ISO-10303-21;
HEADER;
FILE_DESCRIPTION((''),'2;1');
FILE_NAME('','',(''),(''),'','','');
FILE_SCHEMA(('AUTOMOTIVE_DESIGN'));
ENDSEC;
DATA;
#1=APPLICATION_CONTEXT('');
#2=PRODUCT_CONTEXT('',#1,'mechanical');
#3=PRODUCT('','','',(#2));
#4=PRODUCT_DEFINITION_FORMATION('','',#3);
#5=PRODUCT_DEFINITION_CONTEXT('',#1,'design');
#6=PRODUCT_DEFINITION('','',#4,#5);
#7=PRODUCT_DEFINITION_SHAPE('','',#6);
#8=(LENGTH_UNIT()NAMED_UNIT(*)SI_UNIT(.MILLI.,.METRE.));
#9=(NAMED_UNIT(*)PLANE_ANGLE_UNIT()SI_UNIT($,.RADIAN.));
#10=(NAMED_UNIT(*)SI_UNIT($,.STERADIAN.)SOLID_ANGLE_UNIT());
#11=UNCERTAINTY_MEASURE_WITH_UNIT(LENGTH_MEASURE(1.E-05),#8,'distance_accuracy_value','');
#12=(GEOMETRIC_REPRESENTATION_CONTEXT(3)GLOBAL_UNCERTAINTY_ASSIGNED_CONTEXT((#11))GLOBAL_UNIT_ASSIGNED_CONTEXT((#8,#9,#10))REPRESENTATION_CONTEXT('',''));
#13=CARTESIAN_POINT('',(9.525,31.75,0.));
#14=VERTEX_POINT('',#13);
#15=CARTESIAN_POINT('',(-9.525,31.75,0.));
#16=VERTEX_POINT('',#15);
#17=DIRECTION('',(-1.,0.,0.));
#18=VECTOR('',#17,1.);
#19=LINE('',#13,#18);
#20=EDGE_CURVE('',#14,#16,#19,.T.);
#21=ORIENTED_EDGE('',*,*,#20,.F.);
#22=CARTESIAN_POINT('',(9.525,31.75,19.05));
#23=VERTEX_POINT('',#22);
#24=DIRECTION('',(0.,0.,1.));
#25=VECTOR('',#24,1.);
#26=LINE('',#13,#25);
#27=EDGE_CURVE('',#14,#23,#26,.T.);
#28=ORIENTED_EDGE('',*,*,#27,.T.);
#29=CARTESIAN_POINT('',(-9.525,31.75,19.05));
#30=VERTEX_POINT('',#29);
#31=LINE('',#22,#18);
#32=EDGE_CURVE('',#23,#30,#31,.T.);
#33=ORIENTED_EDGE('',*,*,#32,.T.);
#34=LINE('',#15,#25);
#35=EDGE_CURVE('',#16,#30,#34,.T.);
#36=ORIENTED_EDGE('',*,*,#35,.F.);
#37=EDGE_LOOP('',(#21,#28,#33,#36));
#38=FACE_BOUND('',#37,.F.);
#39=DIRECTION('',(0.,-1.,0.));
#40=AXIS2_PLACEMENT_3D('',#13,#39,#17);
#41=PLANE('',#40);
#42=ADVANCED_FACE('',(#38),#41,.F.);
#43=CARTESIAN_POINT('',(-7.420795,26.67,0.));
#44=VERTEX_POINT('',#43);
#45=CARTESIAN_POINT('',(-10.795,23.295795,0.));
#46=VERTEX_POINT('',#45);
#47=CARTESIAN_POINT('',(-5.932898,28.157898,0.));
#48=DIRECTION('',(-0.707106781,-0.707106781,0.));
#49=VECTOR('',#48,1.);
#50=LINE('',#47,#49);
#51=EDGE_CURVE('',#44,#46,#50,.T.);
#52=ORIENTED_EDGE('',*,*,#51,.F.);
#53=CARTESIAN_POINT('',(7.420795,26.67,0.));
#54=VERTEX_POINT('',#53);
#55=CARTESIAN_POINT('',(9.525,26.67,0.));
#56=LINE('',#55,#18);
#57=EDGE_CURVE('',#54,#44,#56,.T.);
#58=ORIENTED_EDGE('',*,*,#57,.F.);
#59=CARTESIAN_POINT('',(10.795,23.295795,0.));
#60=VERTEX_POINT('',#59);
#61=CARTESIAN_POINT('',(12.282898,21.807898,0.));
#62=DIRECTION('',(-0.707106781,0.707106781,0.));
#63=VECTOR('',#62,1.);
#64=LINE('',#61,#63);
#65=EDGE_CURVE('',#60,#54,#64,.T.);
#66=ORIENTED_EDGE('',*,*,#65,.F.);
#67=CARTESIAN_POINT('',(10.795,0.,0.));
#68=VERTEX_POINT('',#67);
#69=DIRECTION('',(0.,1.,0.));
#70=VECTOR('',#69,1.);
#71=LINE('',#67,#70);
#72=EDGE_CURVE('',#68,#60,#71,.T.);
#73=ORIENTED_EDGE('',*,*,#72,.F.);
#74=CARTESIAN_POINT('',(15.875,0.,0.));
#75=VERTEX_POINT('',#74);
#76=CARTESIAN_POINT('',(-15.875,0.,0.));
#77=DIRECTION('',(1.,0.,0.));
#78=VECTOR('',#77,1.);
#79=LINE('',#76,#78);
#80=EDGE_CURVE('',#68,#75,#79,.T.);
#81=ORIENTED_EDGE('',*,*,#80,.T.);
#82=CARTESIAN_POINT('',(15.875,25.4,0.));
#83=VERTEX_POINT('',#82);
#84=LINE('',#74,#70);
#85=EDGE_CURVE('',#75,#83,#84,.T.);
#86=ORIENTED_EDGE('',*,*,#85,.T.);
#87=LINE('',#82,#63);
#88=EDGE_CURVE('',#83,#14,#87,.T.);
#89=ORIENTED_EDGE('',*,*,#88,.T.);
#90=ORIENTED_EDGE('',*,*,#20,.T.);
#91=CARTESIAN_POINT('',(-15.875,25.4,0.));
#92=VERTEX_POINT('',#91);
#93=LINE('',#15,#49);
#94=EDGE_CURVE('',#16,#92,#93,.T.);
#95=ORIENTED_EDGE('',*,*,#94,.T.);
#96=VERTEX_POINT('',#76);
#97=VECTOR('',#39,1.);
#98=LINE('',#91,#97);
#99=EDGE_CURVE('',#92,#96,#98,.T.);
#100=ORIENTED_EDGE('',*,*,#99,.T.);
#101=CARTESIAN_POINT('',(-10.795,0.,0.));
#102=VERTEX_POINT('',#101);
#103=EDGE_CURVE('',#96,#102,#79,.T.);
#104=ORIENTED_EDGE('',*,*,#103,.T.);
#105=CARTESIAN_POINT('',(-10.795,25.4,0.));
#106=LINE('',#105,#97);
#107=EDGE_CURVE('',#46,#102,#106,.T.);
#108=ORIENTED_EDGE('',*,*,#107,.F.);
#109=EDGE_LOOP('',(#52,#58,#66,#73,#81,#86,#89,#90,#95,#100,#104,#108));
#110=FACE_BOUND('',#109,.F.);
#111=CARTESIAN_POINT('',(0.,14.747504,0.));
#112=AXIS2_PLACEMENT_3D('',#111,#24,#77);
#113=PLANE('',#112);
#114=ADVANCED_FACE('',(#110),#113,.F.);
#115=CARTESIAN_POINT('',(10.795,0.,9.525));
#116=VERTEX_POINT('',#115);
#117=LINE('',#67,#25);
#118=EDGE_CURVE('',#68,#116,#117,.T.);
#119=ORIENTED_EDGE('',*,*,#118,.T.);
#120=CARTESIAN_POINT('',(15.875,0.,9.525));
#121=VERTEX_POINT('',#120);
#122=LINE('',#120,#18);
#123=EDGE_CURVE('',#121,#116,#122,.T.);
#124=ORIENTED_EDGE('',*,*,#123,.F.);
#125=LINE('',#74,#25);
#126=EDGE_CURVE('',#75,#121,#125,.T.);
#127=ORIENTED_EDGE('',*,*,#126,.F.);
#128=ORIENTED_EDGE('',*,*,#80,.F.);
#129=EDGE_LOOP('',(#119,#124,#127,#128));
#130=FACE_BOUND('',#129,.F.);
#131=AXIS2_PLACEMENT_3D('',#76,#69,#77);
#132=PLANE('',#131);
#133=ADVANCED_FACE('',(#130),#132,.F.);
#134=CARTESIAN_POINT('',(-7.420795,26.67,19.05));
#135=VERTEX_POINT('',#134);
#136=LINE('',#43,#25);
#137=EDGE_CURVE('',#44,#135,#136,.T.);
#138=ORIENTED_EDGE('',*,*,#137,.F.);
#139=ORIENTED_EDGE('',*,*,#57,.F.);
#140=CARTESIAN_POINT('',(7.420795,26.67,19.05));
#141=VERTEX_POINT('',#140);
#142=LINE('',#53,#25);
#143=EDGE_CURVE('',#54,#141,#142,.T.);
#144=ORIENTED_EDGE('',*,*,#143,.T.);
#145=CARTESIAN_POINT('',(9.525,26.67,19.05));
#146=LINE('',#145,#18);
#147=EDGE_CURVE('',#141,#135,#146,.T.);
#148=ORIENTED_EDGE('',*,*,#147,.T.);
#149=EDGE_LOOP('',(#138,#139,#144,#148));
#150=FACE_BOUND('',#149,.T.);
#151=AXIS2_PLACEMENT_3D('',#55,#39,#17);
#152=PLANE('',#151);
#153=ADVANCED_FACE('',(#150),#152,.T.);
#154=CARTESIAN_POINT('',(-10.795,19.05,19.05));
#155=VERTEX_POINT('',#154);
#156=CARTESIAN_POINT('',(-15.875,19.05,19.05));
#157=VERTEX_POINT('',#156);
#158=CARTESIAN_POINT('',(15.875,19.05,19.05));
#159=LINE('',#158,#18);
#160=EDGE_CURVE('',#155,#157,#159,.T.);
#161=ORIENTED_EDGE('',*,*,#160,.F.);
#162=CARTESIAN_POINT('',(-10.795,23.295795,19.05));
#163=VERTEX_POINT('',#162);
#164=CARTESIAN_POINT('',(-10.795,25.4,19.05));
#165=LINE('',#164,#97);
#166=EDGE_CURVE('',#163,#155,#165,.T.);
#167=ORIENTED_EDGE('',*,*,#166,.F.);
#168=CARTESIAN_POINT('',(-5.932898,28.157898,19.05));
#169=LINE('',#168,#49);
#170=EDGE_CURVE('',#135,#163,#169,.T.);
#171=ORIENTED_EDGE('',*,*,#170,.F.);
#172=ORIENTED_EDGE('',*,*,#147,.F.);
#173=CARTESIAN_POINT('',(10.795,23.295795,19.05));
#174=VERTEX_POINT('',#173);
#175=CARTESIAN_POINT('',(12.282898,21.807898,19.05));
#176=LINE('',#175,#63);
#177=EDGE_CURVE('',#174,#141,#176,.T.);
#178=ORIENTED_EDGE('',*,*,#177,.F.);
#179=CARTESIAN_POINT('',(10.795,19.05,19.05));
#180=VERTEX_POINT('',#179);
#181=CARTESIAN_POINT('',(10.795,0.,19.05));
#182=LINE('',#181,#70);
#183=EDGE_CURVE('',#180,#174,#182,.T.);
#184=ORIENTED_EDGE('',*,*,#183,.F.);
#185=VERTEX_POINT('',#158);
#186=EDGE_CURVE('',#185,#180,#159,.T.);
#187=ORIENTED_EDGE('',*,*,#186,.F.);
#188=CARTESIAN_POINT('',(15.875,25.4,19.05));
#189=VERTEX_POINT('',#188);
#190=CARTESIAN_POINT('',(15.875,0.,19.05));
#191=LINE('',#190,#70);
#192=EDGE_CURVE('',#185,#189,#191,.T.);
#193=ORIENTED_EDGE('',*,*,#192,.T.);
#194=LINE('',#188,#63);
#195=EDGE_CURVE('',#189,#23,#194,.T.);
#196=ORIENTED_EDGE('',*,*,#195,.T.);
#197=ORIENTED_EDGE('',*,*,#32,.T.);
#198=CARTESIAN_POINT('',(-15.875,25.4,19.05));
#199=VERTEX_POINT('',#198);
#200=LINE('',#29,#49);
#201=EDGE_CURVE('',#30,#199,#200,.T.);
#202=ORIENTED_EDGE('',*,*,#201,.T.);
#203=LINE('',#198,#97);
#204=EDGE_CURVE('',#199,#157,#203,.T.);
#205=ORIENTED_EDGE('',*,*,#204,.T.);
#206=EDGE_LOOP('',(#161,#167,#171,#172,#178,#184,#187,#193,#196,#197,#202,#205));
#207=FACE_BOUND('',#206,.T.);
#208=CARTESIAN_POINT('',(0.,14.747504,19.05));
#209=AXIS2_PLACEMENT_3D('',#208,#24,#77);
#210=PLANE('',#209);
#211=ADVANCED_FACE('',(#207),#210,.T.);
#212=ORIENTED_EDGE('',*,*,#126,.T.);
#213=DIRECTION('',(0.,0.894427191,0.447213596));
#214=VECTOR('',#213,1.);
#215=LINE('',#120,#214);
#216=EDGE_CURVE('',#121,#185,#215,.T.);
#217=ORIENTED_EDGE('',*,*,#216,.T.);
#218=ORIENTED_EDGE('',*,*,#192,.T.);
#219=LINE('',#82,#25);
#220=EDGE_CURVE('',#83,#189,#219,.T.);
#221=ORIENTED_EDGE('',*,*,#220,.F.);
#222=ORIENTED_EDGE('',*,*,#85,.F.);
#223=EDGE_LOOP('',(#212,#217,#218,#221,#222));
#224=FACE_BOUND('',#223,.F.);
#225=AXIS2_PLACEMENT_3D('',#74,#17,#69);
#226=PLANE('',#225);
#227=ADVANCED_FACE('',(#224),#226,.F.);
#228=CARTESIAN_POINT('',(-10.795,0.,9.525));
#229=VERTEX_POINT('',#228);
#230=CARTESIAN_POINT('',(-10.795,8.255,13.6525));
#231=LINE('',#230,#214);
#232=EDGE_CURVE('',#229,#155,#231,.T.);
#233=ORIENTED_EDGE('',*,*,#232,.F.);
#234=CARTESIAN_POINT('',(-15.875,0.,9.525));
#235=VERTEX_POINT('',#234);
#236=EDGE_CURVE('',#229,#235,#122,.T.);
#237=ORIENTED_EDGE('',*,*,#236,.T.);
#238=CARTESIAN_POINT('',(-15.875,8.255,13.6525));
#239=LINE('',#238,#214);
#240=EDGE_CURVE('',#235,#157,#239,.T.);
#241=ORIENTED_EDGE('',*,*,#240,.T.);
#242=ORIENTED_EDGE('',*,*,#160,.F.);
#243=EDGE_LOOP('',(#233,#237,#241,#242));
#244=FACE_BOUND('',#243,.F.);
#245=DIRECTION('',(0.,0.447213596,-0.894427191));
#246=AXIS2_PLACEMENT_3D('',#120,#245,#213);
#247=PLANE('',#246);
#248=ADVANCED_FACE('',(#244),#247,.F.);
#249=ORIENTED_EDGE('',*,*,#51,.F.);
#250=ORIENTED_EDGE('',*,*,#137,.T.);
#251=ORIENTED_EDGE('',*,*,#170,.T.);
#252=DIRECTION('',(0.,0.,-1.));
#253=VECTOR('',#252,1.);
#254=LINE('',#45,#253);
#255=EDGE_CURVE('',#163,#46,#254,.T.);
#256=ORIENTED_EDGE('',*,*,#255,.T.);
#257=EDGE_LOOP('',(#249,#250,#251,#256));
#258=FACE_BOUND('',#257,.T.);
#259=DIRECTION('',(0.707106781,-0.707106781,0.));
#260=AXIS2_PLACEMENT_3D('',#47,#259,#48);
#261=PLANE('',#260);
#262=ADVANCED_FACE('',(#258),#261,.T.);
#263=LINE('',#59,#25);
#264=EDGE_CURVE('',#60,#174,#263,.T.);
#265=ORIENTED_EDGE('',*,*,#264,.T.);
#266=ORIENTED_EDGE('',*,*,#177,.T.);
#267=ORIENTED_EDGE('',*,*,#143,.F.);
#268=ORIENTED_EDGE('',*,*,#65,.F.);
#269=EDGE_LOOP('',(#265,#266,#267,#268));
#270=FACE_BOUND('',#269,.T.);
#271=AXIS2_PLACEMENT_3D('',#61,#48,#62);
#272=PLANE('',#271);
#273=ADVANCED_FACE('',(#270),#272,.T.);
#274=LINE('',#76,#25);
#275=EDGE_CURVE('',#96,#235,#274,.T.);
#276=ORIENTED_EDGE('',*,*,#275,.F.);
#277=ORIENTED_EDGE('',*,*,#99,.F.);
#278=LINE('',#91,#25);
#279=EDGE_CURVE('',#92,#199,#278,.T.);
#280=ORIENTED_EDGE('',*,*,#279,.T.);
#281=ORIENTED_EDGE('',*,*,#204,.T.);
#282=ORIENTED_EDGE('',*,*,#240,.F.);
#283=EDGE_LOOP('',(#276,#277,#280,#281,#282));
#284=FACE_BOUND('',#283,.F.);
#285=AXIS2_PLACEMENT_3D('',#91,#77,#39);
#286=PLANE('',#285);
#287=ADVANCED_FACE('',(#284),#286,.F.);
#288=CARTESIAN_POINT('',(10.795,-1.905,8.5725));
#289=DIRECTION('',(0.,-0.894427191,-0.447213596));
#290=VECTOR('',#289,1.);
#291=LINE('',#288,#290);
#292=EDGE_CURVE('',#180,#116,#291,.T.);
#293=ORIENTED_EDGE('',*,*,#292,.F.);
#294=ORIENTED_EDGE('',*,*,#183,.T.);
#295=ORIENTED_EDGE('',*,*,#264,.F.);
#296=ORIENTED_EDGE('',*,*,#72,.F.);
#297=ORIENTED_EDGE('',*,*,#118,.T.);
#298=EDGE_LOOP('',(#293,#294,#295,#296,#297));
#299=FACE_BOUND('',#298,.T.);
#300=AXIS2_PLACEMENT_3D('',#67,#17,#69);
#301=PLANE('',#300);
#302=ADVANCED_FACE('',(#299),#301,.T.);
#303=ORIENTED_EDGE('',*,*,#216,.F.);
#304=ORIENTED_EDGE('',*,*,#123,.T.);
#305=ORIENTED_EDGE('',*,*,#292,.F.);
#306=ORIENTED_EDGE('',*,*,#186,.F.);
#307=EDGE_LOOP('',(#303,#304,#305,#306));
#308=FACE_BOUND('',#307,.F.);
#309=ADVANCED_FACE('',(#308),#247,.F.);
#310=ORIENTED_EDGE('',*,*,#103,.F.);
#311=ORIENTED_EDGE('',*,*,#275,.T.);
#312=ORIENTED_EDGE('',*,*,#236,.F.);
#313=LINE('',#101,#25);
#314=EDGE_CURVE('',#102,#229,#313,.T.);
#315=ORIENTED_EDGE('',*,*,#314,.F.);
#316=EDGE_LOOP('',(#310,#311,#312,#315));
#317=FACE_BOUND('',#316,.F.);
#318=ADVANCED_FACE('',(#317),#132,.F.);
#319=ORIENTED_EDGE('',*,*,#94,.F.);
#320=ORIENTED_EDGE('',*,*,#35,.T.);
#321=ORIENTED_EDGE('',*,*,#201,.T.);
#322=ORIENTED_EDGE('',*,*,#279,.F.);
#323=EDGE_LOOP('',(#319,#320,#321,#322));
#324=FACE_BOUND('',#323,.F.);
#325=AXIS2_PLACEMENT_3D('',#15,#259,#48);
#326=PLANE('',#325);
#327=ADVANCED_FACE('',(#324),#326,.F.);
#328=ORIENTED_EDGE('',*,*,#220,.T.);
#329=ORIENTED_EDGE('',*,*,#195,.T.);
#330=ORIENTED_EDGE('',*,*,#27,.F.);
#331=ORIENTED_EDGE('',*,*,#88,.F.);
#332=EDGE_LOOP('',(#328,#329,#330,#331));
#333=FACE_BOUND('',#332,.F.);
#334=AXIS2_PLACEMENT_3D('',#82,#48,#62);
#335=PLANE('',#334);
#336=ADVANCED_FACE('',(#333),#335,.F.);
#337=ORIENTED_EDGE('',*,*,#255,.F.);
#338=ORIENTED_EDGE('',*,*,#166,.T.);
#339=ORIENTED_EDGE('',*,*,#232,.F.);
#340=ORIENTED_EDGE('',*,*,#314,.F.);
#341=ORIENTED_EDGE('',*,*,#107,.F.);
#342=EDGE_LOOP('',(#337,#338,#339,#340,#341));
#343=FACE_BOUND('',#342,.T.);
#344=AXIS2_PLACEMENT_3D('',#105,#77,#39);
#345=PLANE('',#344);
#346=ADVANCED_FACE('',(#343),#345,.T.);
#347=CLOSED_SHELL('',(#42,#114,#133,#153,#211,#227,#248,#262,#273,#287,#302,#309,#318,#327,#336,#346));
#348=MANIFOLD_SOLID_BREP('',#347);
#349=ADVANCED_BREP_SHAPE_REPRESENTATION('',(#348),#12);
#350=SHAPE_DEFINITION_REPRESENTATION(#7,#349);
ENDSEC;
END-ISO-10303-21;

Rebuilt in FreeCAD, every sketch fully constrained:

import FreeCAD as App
import Part
import Sketcher
from FreeCAD import Vector
Q = App.Units.Quantity


def faces_at(feature, points):
    """Names of the faces that lie closest to the given points."""
    faces = feature.Shape.Faces
    near = lambda p: min(range(len(faces)), key=lambda i: faces[i].distToShape(Part.Vertex(*p))[0])
    return sorted({f"Face{near(p) + 1}" for p in points})


def add_polygon(sketch, points):
    """Adds a closed chain of lines whose ends are joined by coincident constraints."""
    first, n = sketch.GeometryCount, len(points)
    for a, b in zip(points, points[1:] + points[:1]):
        sketch.addGeometry(Part.LineSegment(App.Vector(*a, 0), App.Vector(*b, 0)), False)
    for i in range(n):
        sketch.addConstraint(Sketcher.Constraint("Coincident", first + i, 2, first + (i + 1) % n, 1))

doc = App.newDocument("Part")
params = doc.addObject("Spreadsheet::Sheet", "Params")
for row, (alias, value) in enumerate([
    ("sketch1_height", "1 in"),
    ("sketch1_width", "1.25 in"),
    ("pad1_length", "0.75 in"),
    ("thickness_wall", "0.2 in"),
    ("sketch2_width", "0.75 in"),
    ("sketch2_height", "0.375 in"),
], start=1):
    params.set(f"A{row}", alias)
    params.set(f"B{row}", "=" + value)
    params.setAlias(f"B{row}", alias)

body = doc.addObject("PartDesign::Body", "Body")

# Sketch on XY plane
sketch1 = body.newObject("Sketcher::SketchObject", "Sketch")
sketch1.AttachmentSupport = (doc.getObject("XY_Plane"), [""])
sketch1.MapMode = "FlatFace"
add_polygon(sketch1, [(-16, 25), (-16, 0), (16, 0), (16, 25), (10, 32), (-10, 32)])  # lines 0-5
sketch1.addConstraint([
    Sketcher.Constraint("Vertical", 0),
    Sketcher.Constraint("Horizontal", 1),
    Sketcher.Constraint("Vertical", 2),
    Sketcher.Constraint("Horizontal", 4),
    Sketcher.Constraint("Symmetric", 0, 2, 1, 2, -1, 1),
    Sketcher.Constraint("Perpendicular", 3, 5),
    Sketcher.Constraint("Horizontal", 2, 2, 5, 2),
    Sketcher.Constraint("Equal", 3, 5),
    Sketcher.Constraint("DistanceY", 0, 2, 0, 1, Q("1 in")),
    Sketcher.Constraint("DistanceX", 0, 2, 3, 2, Q("1 in")),
    Sketcher.Constraint("DistanceX", 1, 1, 1, 2, Q("1.25 in")),
])
sketch1.setExpression("Constraints[14]", "Params.sketch1_height")
sketch1.setExpression("Constraints[16]", "Params.sketch1_width")
pad1 = body.newObject("PartDesign::Pad", "Pad")
pad1.Profile = sketch1
pad1.setExpression("Length", "Params.pad1_length")
doc.recompute()

thickness = body.newObject("PartDesign::Thickness", "Thickness")
thickness.Base = (pad1, faces_at(pad1, [(0, 15.875, 19.05), (0, 0, 9.525), (0, 15.875, 0)]))
thickness.setExpression("Value", "Params.thickness_wall")
thickness.Reversed = True
thickness.Join = "Arc"

# Sketch on YZ plane
sketch2 = body.newObject("Sketcher::SketchObject", "Sketch001")
sketch2.AttachmentSupport = (doc.getObject("YZ_Plane"), [""])
sketch2.MapMode = "FlatFace"
sketch2.AttachmentOffset = App.Placement(Vector(0, 0, 0.625 * 25.4), App.Rotation())
add_polygon(sketch2, [(0, 19), (0, 10), (19, 19)])  # lines 0-2
sketch2.addConstraint([
    Sketcher.Constraint("Vertical", 0),
    Sketcher.Constraint("Horizontal", 2),
    Sketcher.Constraint("PointOnObject", 0, 2, -2),
    Sketcher.Constraint("DistanceX", 2, 2, 2, 1, Q("0.75 in")),
    Sketcher.Constraint("DistanceY", 0, 2, 0, 1, Q("0.375 in")),
    Sketcher.Constraint("DistanceY", -1, 1, 1, 2, Q("0.75 in")),
])
sketch2.setExpression("Constraints[6]", "Params.sketch2_width")
sketch2.setExpression("Constraints[7]", "Params.sketch2_height")
pocket1 = body.newObject("PartDesign::Pocket", "Pocket")
pocket1.Profile = sketch2
pocket1.Type = "ThroughAll"

doc.recompute()
